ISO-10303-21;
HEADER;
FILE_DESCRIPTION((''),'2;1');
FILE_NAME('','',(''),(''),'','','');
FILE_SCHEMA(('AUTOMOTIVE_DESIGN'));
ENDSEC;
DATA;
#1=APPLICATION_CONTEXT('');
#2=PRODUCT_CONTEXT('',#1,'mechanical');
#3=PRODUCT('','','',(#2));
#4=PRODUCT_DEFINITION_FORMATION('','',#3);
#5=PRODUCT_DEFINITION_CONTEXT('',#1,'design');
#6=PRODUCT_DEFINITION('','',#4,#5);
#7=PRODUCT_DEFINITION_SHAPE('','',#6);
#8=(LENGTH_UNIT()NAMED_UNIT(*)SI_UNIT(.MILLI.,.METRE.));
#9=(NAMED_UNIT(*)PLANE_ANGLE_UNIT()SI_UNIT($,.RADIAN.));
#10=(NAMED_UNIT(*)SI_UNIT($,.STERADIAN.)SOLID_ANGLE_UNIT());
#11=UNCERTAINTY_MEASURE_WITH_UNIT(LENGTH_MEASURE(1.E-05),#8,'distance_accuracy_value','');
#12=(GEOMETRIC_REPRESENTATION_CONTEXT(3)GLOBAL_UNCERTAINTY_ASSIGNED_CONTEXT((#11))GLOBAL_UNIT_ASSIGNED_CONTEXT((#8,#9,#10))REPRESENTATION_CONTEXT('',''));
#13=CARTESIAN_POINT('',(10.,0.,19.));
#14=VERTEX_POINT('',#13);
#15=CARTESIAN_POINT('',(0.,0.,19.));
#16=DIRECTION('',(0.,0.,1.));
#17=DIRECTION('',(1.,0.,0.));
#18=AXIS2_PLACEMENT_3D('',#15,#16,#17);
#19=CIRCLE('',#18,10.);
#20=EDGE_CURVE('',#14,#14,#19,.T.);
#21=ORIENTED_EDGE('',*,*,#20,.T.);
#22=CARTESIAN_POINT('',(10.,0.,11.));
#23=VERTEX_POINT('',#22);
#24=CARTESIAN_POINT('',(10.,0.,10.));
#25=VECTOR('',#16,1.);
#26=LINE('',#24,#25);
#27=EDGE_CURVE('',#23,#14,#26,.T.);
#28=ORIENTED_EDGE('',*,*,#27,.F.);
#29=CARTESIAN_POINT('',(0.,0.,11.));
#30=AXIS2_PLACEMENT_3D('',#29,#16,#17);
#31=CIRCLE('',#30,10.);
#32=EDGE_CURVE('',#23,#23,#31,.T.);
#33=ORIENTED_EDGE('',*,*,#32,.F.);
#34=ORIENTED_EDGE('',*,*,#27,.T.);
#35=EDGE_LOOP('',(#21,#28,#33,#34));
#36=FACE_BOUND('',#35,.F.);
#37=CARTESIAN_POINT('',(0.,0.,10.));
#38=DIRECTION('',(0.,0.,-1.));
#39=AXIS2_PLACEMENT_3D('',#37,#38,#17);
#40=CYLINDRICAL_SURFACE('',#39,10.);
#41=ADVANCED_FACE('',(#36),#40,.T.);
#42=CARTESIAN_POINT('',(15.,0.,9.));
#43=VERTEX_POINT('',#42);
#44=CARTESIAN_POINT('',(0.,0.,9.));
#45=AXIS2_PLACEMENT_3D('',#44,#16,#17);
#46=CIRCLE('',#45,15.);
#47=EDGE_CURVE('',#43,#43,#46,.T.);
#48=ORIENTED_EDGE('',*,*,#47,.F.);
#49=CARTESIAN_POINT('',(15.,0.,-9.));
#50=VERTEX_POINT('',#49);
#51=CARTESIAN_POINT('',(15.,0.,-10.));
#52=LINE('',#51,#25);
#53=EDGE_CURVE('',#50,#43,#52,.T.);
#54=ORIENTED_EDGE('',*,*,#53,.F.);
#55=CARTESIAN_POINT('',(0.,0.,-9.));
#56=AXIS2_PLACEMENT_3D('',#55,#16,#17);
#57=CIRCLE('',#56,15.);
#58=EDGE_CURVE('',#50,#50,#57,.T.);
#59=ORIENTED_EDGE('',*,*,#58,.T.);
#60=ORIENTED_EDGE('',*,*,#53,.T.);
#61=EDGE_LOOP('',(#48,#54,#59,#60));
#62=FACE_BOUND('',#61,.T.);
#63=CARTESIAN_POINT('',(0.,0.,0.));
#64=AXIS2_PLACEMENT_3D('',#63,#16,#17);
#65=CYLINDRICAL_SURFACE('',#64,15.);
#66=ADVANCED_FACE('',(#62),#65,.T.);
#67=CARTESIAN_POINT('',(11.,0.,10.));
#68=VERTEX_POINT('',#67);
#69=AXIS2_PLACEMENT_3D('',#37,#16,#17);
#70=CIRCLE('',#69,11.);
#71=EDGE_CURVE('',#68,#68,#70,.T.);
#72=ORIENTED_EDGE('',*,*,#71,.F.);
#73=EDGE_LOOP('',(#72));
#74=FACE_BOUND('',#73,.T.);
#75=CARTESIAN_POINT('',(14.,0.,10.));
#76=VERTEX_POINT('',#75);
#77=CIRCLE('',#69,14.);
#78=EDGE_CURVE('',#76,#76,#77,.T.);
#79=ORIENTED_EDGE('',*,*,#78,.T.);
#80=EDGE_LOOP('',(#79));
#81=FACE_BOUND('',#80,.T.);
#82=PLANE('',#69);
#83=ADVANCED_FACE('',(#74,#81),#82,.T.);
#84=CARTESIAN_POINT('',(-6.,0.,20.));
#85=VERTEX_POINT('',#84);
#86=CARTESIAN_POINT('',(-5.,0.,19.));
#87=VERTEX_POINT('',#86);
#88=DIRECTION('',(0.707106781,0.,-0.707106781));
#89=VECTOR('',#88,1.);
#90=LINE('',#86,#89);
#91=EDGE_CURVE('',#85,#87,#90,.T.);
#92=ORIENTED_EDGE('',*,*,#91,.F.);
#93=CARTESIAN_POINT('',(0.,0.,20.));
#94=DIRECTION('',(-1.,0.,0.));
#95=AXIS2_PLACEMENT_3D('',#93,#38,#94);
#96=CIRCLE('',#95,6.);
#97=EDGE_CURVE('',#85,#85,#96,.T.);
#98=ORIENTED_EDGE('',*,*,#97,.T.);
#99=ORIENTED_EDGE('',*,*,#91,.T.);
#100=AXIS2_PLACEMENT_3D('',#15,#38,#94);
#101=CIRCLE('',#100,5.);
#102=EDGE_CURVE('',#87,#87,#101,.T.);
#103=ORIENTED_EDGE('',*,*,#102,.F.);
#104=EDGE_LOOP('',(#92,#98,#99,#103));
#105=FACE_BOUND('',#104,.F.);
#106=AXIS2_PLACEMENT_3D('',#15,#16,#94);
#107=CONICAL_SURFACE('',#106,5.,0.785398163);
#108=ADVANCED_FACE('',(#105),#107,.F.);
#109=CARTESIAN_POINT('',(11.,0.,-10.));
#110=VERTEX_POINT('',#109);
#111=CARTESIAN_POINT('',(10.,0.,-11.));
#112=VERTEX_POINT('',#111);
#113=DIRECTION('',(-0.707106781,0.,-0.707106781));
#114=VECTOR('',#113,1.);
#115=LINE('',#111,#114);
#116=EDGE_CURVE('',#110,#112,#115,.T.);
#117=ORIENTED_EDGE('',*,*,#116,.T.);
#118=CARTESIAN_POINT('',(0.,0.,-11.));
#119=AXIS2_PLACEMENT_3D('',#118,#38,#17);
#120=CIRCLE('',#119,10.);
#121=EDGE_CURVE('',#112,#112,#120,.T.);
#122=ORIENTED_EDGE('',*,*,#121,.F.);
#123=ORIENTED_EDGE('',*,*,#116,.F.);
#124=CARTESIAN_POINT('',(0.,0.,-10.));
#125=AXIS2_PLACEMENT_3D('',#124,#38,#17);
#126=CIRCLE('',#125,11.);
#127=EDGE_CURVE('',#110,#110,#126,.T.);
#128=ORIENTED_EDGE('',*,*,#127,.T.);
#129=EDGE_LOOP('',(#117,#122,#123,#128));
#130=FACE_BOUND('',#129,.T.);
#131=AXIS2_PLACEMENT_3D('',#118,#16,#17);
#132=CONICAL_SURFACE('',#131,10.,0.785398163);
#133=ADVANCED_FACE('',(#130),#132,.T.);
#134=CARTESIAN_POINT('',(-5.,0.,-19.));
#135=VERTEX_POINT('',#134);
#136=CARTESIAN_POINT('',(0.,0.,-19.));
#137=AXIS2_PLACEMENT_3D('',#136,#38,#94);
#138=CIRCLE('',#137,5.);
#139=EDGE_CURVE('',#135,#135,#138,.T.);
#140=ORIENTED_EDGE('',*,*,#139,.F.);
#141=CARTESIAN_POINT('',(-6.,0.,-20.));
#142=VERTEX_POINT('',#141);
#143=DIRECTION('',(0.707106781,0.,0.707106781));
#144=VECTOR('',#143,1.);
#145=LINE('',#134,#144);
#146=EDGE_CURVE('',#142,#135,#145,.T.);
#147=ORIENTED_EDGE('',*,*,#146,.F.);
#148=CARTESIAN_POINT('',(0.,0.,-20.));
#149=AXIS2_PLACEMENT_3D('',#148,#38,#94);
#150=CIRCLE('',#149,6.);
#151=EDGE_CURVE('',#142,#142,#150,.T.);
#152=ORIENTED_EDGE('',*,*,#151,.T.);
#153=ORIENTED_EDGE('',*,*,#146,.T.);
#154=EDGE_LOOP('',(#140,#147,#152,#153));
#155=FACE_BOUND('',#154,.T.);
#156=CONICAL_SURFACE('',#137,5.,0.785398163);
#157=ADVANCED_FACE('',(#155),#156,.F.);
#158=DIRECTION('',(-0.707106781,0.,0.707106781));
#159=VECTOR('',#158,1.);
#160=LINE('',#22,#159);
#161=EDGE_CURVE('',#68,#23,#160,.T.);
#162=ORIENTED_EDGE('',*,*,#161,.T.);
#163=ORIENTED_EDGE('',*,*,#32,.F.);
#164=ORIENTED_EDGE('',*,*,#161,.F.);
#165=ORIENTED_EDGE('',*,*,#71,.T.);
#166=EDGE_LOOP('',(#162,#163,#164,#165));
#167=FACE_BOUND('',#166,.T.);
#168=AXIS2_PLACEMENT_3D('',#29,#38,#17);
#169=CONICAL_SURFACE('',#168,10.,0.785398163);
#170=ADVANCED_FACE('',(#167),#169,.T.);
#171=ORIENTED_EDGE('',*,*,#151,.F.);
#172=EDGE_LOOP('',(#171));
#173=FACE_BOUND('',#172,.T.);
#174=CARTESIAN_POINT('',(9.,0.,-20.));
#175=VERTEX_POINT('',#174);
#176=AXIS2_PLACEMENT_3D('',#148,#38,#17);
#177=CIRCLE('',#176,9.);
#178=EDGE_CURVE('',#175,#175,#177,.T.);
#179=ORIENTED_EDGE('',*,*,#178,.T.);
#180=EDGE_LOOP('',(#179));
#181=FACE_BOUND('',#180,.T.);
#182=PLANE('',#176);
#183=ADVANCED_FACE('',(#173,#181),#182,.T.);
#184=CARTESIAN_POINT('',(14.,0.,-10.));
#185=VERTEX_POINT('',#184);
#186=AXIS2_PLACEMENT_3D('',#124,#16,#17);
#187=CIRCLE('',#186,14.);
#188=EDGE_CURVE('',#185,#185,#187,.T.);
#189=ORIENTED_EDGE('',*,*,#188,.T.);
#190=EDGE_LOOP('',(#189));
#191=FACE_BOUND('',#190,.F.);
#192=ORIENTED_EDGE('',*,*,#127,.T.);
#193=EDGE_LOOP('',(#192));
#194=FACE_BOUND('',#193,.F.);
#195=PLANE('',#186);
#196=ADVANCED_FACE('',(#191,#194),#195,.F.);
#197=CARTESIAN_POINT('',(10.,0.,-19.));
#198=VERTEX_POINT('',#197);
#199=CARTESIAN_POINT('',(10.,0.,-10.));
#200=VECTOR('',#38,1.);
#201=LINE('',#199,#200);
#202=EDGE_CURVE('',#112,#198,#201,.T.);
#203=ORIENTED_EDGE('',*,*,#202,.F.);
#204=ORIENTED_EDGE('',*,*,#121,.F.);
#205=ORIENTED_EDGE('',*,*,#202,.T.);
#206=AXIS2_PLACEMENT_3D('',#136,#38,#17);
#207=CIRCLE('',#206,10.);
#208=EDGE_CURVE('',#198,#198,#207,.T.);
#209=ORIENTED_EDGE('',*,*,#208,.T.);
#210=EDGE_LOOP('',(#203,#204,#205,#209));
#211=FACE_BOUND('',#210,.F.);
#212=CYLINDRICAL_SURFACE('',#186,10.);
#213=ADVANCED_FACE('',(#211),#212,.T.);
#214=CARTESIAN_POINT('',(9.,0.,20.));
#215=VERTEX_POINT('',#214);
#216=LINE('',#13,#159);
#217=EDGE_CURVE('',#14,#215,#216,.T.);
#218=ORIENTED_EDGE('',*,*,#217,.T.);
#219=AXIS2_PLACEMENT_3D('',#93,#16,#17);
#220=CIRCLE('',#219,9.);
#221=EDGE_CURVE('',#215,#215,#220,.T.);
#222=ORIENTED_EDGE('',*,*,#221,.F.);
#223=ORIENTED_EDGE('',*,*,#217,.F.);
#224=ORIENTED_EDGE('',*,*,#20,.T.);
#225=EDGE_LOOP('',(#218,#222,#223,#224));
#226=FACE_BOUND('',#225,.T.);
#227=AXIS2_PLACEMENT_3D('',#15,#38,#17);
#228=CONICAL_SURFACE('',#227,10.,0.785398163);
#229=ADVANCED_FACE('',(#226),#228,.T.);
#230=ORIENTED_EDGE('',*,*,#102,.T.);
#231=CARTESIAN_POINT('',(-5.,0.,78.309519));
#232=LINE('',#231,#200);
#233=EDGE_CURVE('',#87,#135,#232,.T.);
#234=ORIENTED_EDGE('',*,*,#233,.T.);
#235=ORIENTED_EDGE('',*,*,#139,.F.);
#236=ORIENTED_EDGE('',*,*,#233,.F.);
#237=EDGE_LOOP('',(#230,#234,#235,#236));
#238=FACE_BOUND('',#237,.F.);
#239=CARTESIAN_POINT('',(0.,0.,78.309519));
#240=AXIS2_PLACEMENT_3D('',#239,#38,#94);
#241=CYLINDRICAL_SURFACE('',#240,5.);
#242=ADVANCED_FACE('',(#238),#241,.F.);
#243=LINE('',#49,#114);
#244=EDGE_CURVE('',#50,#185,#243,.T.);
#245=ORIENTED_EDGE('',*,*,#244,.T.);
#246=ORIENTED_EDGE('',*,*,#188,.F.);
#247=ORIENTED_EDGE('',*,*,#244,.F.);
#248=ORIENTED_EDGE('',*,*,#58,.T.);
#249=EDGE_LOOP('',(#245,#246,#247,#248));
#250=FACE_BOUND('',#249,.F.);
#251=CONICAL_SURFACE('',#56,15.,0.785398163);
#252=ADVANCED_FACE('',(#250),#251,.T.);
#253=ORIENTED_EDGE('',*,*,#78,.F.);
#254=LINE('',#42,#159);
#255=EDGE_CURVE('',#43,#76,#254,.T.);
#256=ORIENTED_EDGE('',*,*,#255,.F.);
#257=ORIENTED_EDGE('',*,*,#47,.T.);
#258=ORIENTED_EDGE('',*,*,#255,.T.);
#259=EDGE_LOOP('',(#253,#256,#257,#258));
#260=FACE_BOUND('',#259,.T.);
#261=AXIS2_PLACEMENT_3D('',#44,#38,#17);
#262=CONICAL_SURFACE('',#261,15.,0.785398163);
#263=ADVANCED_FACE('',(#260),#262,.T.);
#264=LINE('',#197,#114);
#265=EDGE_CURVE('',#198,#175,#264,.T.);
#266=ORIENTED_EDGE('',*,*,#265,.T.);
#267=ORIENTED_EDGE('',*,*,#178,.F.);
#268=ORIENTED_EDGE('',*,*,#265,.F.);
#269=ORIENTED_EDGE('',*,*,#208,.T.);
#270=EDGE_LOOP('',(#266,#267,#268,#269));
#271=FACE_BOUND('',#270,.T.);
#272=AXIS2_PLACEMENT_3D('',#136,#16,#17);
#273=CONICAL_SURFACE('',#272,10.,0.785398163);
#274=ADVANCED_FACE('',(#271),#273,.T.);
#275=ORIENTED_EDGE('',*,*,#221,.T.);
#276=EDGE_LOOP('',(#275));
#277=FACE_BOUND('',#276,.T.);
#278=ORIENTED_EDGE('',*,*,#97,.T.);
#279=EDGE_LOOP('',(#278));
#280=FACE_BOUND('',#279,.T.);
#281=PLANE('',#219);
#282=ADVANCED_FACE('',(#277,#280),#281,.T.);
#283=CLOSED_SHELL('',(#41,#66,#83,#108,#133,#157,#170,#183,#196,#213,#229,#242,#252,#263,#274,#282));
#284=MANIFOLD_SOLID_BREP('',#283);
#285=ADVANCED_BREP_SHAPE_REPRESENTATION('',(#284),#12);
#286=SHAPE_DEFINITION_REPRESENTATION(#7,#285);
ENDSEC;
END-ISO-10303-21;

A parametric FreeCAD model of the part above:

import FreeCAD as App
import Part
import Sketcher
from FreeCAD import Vector


def edges_at(feature, points):
    """Names of the edges that pass closest to the given points."""
    edges = feature.Shape.Edges
    near = lambda p: min(range(len(edges)), key=lambda i: edges[i].distToShape(Part.Vertex(*p))[0])
    return sorted({f"Edge{near(p) + 1}" for p in points})

doc = App.newDocument("Part")
body = doc.addObject("PartDesign::Body", "Body")

# Sketch on XY plane
sketch1 = doc.addObject("Sketcher::SketchObject", "Sketch")
body.addObject(sketch1)
sketch1.AttachmentSupport = (doc.XY_Plane, [""])
sketch1.MapMode = "FlatFace"
sketch1.addGeometry(Part.Circle(Vector(0, 0, 0), Vector(0, 0, 1), 15), False)
sketch1.addConstraint(Sketcher.Constraint("Coincident", 0, 3, -1, 1))
sketch1.addConstraint(Sketcher.Constraint("Diameter", 0, 30.0))
pad1 = doc.addObject("PartDesign::Pad", "Pad")
body.addObject(pad1)
pad1.Profile = sketch1
pad1.Type = "TwoLengths"
pad1.Length = 10
pad1.Length2 = 10

# Sketch on XY plane
sketch2 = doc.addObject("Sketcher::SketchObject", "Sketch001")
body.addObject(sketch2)
sketch2.AttachmentSupport = (doc.XY_Plane, [""])
sketch2.MapMode = "FlatFace"
sketch2.AttachmentOffset = App.Placement(Vector(0, 0, 10), App.Rotation())
sketch2.addGeometry(Part.Circle(Vector(0, 0, 0), Vector(0, 0, 1), 10), False)
sketch2.addConstraint(Sketcher.Constraint("Coincident", 0, 3, -1, 1))
sketch2.addConstraint(Sketcher.Constraint("Diameter", 0, 20.0))
pad2 = doc.addObject("PartDesign::Pad", "Pad001")
body.addObject(pad2)
pad2.Profile = sketch2
pad2.Length = 10

# Sketch on XY plane
sketch3 = doc.addObject("Sketcher::SketchObject", "Sketch002")
body.addObject(sketch3)
sketch3.AttachmentSupport = (doc.XY_Plane, [""])
sketch3.MapMode = "FlatFace"
sketch3.AttachmentOffset = App.Placement(Vector(0, 0, -10), App.Rotation())
sketch3.addGeometry(Part.Circle(Vector(0, 0, 0), Vector(0, 0, 1), 10), False)
sketch3.addConstraint(Sketcher.Constraint("Coincident", 0, 3, -1, 1))
sketch3.addConstraint(Sketcher.Constraint("Diameter", 0, 20.0))
pad3 = doc.addObject("PartDesign::Pad", "Pad002")
body.addObject(pad3)
pad3.Profile = sketch3
pad3.Length = 10
pad3.Reversed = True

# Sketch on XY plane
sketch4 = doc.addObject("Sketcher::SketchObject", "Sketch003")
body.addObject(sketch4)
sketch4.AttachmentSupport = (doc.XY_Plane, [""])
sketch4.MapMode = "FlatFace"
sketch4.AttachmentOffset = App.Placement(Vector(0, 0, 20), App.Rotation())
sketch4.addGeometry(Part.Circle(Vector(0, 0, 0), Vector(0, 0, 1), 5), False)
sketch4.addConstraint(Sketcher.Constraint("Coincident", 0, 3, -1, 1))
sketch4.addConstraint(Sketcher.Constraint("Diameter", 0, 10.0))
doc.recompute()
hole = doc.addObject("PartDesign::Hole", "Hole")
body.addObject(hole)
hole.Profile = sketch4
hole.ThreadType = "None"
hole.Diameter = 10
hole.DepthType = "ThroughAll"
doc.recompute()

chamfer = doc.addObject("PartDesign::Chamfer", "Chamfer")
body.addObject(chamfer)
chamfer.Base = (hole, edges_at(hole, [
    (-10, 0, 20),
    (5, 0, 20),
    (-15, 0, 10),
    (-10, 0, 10),
    (-15, 0, -10),
    (-10, 0, -10),
    (-10, 0, -20),
    (5, 0, -20),
]))
chamfer.Size = 1

doc.recompute()
